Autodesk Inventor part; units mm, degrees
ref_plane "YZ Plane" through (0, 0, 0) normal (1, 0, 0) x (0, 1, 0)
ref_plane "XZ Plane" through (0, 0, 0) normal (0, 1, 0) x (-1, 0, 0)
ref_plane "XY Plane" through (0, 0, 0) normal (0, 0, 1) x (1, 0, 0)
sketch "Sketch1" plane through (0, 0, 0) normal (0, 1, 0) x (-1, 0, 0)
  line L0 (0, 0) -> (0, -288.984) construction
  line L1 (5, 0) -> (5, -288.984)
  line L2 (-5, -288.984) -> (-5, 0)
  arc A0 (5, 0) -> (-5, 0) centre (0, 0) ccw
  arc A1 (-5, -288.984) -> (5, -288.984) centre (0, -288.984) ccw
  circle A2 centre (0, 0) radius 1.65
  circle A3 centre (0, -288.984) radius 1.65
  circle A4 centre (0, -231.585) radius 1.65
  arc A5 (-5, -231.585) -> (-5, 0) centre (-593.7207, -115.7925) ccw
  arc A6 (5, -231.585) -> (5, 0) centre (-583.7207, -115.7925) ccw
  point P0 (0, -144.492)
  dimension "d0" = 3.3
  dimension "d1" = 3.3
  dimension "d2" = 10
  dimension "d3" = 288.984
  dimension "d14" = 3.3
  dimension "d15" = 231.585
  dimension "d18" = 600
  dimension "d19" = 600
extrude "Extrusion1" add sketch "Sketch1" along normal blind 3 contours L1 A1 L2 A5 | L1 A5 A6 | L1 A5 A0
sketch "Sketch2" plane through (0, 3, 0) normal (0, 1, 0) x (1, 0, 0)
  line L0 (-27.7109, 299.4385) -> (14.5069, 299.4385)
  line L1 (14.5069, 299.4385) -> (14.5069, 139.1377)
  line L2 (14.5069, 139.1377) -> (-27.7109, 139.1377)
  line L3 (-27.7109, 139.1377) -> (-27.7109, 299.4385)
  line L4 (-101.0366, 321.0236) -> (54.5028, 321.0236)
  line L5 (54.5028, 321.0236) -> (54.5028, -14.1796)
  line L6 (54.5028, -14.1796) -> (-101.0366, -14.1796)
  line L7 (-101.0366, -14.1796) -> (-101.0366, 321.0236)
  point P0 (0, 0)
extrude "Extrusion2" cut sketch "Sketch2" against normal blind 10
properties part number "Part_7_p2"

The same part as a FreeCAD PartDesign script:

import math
import FreeCAD as App
import Part
import Sketcher
from FreeCAD import Vector

doc = App.newDocument("Part")
body = doc.addObject("PartDesign::Body", "Body")

sketch1 = body.newObject("Sketcher::SketchObject", "Sketch")
sketch1.AttachmentSupport = (doc.getObject("XZ_Plane"), [""])
sketch1.MapMode = "FlatFace"
sketch1.addGeometry([
    Part.LineSegment(Vector(-5, -289, 0), Vector(-5, -231.6, 0)),
    Part.ArcOfCircle(Part.Circle(Vector(583.7, -115.8, 0), Vector(0, 0, 1), 600), math.radians(169), math.radians(191)),
    Part.ArcOfCircle(Part.Circle(Vector(0, 0, 0), Vector(0, 0, 1), 5), math.radians(0), math.radians(180)),
    Part.ArcOfCircle(Part.Circle(Vector(593.7, -115.8, 0), Vector(0, 0, 1), 600), math.radians(169), math.radians(191)),
    Part.LineSegment(Vector(5, -231.6, 0), Vector(5, -289, 0)),
    Part.ArcOfCircle(Part.Circle(Vector(0, -289, 0), Vector(0, 0, 1), 5), math.radians(180), math.radians(360)),
    Part.Circle(Vector(0, -289, 0), Vector(0, 0, 1), 1.6),
    Part.Circle(Vector(0, -231.6, 0), Vector(0, 0, 1), 1.6),
    Part.Circle(Vector(0, 0, 0), Vector(0, 0, 1), 1.6),
], False)
sketch1.addConstraint([
    Sketcher.Constraint("Coincident", 0, 2, 1, 2),
    Sketcher.Constraint("Coincident", 1, 1, 2, 2),
    Sketcher.Constraint("Coincident", 2, 1, 3, 1),
    Sketcher.Constraint("Coincident", 3, 2, 4, 1),
    Sketcher.Constraint("Tangent", 4, 2, 5, 2),
    Sketcher.Constraint("Tangent", 5, 1, 0, 1),
    Sketcher.Constraint("Vertical", 0),
    Sketcher.Constraint("Vertical", 4),
    Sketcher.Constraint("Coincident", 2, 3, -1, 1),
    Sketcher.Constraint("Coincident", 8, 3, -1, 1),
    Sketcher.Constraint("Coincident", 6, 3, 5, 3),
    Sketcher.Constraint("Equal", 1, 3),
    Sketcher.Constraint("Equal", 2, 5),
    Sketcher.Constraint("Equal", 6, 7),
    Sketcher.Constraint("Equal", 7, 8),
    Sketcher.Constraint("Symmetric", 0, 2, 3, 2, -2),
    Sketcher.Constraint("PointOnObject", 7, 3, -2),
    Sketcher.Constraint("PointOnObject", 1, 1, -1),
    Sketcher.Constraint("PointOnObject", 2, 1, -1),
    Sketcher.Constraint("Horizontal", 7, 3, 0, 2),
    Sketcher.Constraint("Radius", 1, 600.0),
    Sketcher.Constraint("Radius", 2, 5.0),
    Sketcher.Constraint("Diameter", 6, 3.3),
    Sketcher.Constraint("DistanceY", 5, 3, -1, 1, 288.984),
    Sketcher.Constraint("DistanceY", 7, 3, -1, 1, 231.585),
])
pad1 = body.newObject("PartDesign::Pad", "Pad")
pad1.Profile = sketch1
pad1.Length = 3
pad1.Reversed = True

sketch2 = body.newObject("Sketcher::SketchObject", "Sketch001")
sketch2.AttachmentSupport = (doc.getObject("XZ_Plane"), [""])
sketch2.MapMode = "FlatFace"
sketch2.AttachmentOffset = App.Placement(Vector(0, 0, -3), App.Rotation())
sketch2.addGeometry([
    Part.LineSegment(Vector(55, -321, 0), Vector(-101, -321, 0)),
    Part.LineSegment(Vector(-101, -321, 0), Vector(-101, 14, 0)),
    Part.LineSegment(Vector(-101, 14, 0), Vector(55, 14, 0)),
    Part.LineSegment(Vector(55, 14, 0), Vector(55, -321, 0)),
    Part.LineSegment(Vector(-28, -139, 0), Vector(-28, -299, 0)),
    Part.LineSegment(Vector(-28, -299, 0), Vector(15, -299, 0)),
    Part.LineSegment(Vector(15, -299, 0), Vector(15, -139, 0)),
    Part.LineSegment(Vector(15, -139, 0), Vector(-28, -139, 0)),
], False)
sketch2.addConstraint([
    Sketcher.Constraint("Coincident", 0, 2, 1, 1),
    Sketcher.Constraint("Coincident", 1, 2, 2, 1),
    Sketcher.Constraint("Coincident", 2, 2, 3, 1),
    Sketcher.Constraint("Coincident", 3, 2, 0, 1),
    Sketcher.Constraint("Coincident", 4, 2, 5, 1),
    Sketcher.Constraint("Coincident", 5, 2, 6, 1),
    Sketcher.Constraint("Coincident", 6, 2, 7, 1),
    Sketcher.Constraint("Coincident", 7, 2, 4, 1),
    Sketcher.Constraint("Horizontal", 0),
    Sketcher.Constraint("Vertical", 1),
    Sketcher.Constraint("Horizontal", 2),
    Sketcher.Constraint("Vertical", 3),
    Sketcher.Constraint("Vertical", 4),
    Sketcher.Constraint("Horizontal", 5),
    Sketcher.Constraint("Vertical", 6),
    Sketcher.Constraint("Horizontal", 7),
    Sketcher.Constraint("DistanceX", 0, 2, 0, 1, 155.5394),
    Sketcher.Constraint("DistanceX", 5, 1, 5, 2, 42.2178),
    Sketcher.Constraint("DistanceY", 1, 1, 1, 2, 335.2032),
    Sketcher.Constraint("DistanceY", 4, 2, 4, 1, 160.3008),
    Sketcher.Constraint("DistanceX", 4, 2, -1, 1, 27.711),
    Sketcher.Constraint("DistanceY", 0, 2, 4, 2, 21.585),
    Sketcher.Constraint("DistanceX", 5, 2, 3, 2, 39.996),
    Sketcher.Constraint("DistanceY", 0, 2, -1, 1, 321.0236),
])
pocket1 = body.newObject("PartDesign::Pocket", "Pocket")
pocket1.Profile = sketch2
pocket1.Length = 10
pocket1.Reversed = True

doc.recompute()
